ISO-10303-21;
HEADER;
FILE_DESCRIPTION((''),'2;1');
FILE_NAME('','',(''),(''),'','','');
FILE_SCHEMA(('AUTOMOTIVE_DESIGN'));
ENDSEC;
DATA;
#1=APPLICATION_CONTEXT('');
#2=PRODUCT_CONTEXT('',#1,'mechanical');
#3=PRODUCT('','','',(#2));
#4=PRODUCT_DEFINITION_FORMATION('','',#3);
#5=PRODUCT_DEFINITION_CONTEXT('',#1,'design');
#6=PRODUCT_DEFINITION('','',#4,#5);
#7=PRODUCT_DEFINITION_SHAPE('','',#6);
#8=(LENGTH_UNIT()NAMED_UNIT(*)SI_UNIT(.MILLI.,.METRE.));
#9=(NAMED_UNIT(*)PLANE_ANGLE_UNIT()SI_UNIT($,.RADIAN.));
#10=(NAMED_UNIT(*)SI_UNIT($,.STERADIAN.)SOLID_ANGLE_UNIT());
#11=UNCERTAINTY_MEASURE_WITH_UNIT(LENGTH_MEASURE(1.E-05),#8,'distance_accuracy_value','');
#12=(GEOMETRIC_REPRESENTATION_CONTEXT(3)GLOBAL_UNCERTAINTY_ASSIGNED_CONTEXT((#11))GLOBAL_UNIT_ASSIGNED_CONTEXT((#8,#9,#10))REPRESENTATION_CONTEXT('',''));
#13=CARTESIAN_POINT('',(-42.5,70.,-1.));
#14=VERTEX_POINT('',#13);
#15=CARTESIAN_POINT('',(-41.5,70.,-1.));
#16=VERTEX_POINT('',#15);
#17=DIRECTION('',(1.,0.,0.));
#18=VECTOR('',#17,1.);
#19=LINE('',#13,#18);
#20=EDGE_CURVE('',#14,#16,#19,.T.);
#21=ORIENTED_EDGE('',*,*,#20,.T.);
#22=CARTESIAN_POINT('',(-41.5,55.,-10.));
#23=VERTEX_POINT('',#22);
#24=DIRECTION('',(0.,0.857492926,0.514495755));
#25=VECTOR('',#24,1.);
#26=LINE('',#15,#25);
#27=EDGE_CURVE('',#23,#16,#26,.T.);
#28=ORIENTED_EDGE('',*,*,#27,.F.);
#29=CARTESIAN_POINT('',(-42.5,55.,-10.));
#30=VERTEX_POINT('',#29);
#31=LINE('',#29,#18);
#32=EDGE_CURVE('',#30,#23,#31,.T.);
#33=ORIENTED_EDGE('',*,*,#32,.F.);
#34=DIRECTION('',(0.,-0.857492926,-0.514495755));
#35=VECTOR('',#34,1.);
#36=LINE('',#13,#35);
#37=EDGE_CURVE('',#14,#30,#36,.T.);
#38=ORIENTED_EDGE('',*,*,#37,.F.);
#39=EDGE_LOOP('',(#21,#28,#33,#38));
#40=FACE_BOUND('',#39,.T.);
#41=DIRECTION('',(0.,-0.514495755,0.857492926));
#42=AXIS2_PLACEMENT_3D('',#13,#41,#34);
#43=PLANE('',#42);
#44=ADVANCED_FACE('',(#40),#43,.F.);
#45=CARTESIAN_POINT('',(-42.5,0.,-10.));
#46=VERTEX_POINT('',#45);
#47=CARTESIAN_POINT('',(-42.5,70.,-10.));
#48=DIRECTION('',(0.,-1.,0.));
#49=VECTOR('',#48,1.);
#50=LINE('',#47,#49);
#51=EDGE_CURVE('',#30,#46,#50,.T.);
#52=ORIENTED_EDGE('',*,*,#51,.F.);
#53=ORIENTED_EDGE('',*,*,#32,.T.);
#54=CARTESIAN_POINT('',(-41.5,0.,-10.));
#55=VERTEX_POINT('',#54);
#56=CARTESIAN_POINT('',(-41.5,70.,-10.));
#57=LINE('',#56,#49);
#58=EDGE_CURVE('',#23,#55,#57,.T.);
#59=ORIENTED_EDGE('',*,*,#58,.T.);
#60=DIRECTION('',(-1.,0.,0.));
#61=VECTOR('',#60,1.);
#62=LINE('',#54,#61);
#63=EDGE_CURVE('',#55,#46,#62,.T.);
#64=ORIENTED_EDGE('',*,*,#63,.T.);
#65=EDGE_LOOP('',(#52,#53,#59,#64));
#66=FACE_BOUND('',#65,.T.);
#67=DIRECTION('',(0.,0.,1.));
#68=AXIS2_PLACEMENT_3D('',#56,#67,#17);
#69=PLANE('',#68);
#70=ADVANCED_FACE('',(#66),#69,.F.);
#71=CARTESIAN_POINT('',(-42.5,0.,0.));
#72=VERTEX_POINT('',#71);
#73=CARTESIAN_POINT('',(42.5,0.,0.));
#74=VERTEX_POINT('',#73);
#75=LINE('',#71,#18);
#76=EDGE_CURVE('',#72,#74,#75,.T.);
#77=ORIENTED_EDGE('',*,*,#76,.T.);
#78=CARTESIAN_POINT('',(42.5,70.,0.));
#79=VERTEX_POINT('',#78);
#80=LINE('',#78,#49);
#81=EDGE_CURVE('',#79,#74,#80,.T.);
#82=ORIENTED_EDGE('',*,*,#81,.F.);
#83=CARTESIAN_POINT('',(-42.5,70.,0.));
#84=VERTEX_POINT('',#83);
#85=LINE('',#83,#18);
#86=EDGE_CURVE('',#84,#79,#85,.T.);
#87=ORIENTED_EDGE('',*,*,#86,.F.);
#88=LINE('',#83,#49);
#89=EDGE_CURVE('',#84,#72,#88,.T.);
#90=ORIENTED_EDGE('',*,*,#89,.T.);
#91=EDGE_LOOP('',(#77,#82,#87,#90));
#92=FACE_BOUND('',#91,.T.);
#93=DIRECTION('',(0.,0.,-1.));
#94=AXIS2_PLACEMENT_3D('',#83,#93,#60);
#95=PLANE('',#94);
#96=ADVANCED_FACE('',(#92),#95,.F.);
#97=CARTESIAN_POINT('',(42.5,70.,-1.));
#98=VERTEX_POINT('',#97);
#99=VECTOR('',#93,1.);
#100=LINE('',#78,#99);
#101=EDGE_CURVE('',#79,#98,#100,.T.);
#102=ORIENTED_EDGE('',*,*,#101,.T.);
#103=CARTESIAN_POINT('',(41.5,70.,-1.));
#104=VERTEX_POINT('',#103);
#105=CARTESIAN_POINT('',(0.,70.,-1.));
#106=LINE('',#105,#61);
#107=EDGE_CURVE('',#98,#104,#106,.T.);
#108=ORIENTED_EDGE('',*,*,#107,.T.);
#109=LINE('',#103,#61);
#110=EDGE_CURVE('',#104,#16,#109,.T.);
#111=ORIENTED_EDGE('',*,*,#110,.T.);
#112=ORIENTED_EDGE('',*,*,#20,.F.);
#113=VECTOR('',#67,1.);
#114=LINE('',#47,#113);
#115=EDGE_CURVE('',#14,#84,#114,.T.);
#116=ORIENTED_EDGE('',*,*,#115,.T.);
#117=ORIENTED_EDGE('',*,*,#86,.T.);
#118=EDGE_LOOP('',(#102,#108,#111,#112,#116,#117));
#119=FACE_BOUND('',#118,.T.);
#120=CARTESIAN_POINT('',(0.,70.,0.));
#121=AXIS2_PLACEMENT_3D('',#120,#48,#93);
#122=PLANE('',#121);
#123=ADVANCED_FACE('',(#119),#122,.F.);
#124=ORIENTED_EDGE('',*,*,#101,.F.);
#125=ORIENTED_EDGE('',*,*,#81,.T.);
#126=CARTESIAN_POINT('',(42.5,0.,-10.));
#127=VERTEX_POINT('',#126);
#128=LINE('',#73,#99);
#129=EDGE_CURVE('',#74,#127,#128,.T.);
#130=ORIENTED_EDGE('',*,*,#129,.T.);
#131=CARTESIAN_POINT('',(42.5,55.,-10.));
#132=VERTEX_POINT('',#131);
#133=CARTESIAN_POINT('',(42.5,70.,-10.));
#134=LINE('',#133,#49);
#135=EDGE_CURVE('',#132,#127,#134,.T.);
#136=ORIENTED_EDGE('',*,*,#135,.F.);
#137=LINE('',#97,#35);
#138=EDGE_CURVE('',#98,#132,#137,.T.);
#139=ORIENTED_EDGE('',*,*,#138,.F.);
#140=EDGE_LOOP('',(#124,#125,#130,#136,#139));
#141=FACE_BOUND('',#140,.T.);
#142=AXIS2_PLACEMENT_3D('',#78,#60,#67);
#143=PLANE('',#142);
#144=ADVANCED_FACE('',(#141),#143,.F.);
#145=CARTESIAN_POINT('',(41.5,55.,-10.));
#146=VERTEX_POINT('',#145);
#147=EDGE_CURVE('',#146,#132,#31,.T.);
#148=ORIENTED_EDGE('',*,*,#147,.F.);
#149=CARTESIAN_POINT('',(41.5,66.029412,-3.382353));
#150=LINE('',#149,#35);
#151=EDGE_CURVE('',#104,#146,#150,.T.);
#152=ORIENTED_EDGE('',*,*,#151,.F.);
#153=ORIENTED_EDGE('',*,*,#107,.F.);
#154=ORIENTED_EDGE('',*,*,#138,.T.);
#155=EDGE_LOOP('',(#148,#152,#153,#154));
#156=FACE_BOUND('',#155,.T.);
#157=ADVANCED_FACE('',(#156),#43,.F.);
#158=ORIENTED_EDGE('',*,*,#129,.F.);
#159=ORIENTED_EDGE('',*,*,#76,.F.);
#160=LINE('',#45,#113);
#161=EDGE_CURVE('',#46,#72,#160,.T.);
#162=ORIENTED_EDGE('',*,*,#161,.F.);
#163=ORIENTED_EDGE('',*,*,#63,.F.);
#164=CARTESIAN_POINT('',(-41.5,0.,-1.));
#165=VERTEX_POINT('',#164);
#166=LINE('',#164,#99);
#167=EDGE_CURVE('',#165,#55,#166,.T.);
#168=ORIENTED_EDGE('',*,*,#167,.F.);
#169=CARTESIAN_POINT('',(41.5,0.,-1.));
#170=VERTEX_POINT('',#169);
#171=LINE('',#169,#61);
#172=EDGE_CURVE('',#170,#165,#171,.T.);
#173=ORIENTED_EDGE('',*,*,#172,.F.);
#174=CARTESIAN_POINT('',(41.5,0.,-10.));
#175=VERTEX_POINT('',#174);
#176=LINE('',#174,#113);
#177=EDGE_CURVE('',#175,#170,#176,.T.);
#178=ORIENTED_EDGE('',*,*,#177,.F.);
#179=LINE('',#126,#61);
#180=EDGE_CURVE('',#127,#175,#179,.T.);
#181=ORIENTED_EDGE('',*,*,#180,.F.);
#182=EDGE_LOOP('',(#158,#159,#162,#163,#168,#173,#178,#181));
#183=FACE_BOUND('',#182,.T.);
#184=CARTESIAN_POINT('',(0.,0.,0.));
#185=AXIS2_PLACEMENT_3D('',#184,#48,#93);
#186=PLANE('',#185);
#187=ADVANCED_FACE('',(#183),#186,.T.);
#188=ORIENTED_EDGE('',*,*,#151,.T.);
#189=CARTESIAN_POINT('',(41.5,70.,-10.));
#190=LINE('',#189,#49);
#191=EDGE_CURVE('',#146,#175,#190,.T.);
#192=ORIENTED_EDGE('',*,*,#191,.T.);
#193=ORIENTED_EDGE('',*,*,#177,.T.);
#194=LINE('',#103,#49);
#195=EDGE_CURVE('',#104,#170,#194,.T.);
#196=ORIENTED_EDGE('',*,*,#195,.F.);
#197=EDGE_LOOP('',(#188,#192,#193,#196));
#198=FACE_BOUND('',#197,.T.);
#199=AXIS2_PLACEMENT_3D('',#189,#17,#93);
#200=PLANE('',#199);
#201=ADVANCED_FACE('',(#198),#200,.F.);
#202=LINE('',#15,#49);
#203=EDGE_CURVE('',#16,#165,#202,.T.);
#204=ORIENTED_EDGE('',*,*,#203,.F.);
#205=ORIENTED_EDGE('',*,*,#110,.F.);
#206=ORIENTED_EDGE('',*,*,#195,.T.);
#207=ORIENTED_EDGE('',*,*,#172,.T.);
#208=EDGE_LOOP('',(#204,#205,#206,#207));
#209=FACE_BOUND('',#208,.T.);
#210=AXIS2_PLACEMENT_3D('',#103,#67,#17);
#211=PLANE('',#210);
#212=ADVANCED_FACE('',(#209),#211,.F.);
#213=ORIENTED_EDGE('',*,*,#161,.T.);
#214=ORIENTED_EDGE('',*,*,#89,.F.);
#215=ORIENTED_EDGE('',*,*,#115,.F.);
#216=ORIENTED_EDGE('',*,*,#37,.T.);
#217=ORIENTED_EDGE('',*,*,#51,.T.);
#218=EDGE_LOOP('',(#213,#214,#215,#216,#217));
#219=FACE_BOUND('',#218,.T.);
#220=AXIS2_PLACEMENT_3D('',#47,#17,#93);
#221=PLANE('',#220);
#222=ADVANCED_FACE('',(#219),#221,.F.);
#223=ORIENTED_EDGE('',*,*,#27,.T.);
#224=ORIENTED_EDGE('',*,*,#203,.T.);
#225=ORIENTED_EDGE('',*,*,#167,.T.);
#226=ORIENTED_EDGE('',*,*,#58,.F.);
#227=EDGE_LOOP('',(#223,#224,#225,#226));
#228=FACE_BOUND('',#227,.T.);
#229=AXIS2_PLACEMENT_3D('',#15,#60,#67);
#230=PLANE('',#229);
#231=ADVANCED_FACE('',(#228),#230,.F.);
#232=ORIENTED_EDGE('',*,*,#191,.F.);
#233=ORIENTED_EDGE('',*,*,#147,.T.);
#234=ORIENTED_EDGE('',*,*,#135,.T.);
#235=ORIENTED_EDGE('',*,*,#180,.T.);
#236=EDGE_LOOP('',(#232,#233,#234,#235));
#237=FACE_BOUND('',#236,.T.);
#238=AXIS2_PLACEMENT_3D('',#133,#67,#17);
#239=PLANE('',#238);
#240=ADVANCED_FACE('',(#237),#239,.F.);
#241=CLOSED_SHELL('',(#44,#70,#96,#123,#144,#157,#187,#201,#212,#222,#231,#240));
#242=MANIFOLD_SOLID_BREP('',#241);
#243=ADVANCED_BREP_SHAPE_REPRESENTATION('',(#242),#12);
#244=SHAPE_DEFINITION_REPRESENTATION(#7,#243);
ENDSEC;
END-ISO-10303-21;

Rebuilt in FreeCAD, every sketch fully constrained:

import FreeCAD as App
import Part
import Sketcher
from FreeCAD import Vector

doc = App.newDocument("Part")
params = doc.addObject("Spreadsheet::Sheet", "Params")
for row, (alias, value) in enumerate([
    ("sketch1_width", "85 mm"),
    ("sketch1_width2", "1 mm"),
    ("sketch1_height", "10 mm"),
    ("sketch1_height2", "9 mm"),
    ("pad1_length", "70 mm"),
    ("sketch2_width", "15 mm"),
    ("sketch2_height", "9 mm"),
], start=1):
    params.set(f"A{row}", alias)
    params.set(f"B{row}", "=" + value)
    params.setAlias(f"B{row}", alias)

body = doc.addObject("PartDesign::Body", "Body")

sketch1 = body.newObject("Sketcher::SketchObject", "Sketch")
sketch1.AttachmentSupport = (doc.getObject("XZ_Plane"), [""])
sketch1.MapMode = "FlatFace"
sketch1.addGeometry([
    Part.LineSegment(Vector(-42.5, 0, 0), Vector(42.5, 0, 0)),
    Part.LineSegment(Vector(42.5, 0, 0), Vector(42.5, -10, 0)),
    Part.LineSegment(Vector(42.5, -10, 0), Vector(41.5, -10, 0)),
    Part.LineSegment(Vector(41.5, -10, 0), Vector(41.5, -1, 0)),
    Part.LineSegment(Vector(41.5, -1, 0), Vector(-41.5, -1, 0)),
    Part.LineSegment(Vector(-41.5, -1, 0), Vector(-41.5, -10, 0)),
    Part.LineSegment(Vector(-41.5, -10, 0), Vector(-42.5, -10, 0)),
    Part.LineSegment(Vector(-42.5, -10, 0), Vector(-42.5, 0, 0)),
], False)
sketch1.addConstraint([
    Sketcher.Constraint("Coincident", 0, 2, 1, 1),
    Sketcher.Constraint("Coincident", 1, 2, 2, 1),
    Sketcher.Constraint("Coincident", 2, 2, 3, 1),
    Sketcher.Constraint("Coincident", 3, 2, 4, 1),
    Sketcher.Constraint("Coincident", 4, 2, 5, 1),
    Sketcher.Constraint("Coincident", 5, 2, 6, 1),
    Sketcher.Constraint("Coincident", 6, 2, 7, 1),
    Sketcher.Constraint("Coincident", 7, 2, 0, 1),
    Sketcher.Constraint("Horizontal", 0),
    Sketcher.Constraint("Vertical", 1),
    Sketcher.Constraint("Horizontal", 2),
    Sketcher.Constraint("Vertical", 3),
    Sketcher.Constraint("Horizontal", 4),
    Sketcher.Constraint("Vertical", 5),
    Sketcher.Constraint("Horizontal", 6),
    Sketcher.Constraint("Vertical", 7),
    Sketcher.Constraint("Symmetric", 0, 2, 7, 2, -1, 1),
    Sketcher.Constraint("Symmetric", 2, 2, 5, 2, -2),
    Sketcher.Constraint("DistanceX", 0, 1, 0, 2, 85.0),
    Sketcher.Constraint("DistanceX", 2, 2, 2, 1, 1.0),
    Sketcher.Constraint("DistanceY", 1, 2, 1, 1, 10.0),
    Sketcher.Constraint("DistanceY", 3, 1, 3, 2, 9.0),
])
sketch1.setExpression("Constraints[18]", "Params.sketch1_width")
sketch1.setExpression("Constraints[19]", "Params.sketch1_width2")
sketch1.setExpression("Constraints[20]", "Params.sketch1_height")
sketch1.setExpression("Constraints[21]", "Params.sketch1_height2")
pad1 = body.newObject("PartDesign::Pad", "Pad")
pad1.Profile = sketch1
pad1.setExpression("Length", "Params.pad1_length")
pad1.Reversed = True

sketch2 = body.newObject("Sketcher::SketchObject", "Sketch001")
sketch2.AttachmentSupport = (doc.getObject("YZ_Plane"), [""])
sketch2.MapMode = "FlatFace"
sketch2.addGeometry([
    Part.LineSegment(Vector(70, -1, 0), Vector(55, -10, 0)),
    Part.LineSegment(Vector(55, -10, 0), Vector(70, -10, 0)),
    Part.LineSegment(Vector(70, -10, 0), Vector(70, -1, 0)),
], False)
sketch2.addConstraint([
    Sketcher.Constraint("Coincident", 0, 2, 1, 1),
    Sketcher.Constraint("Coincident", 1, 2, 2, 1),
    Sketcher.Constraint("Coincident", 2, 2, 0, 1),
    Sketcher.Constraint("Horizontal", 1),
    Sketcher.Constraint("Vertical", 2),
    Sketcher.Constraint("DistanceX", 1, 1, 1, 2, 15.0),
    Sketcher.Constraint("DistanceY", 2, 1, 2, 2, 9.0),
    Sketcher.Constraint("DistanceX", -1, 1, 0, 2, 55.0),
    Sketcher.Constraint("DistanceY", 0, 2, -1, 1, 10.0),
])
sketch2.setExpression("Constraints[5]", "Params.sketch2_width")
sketch2.setExpression("Constraints[6]", "Params.sketch2_height")
pocket1 = body.newObject("PartDesign::Pocket", "Pocket")
pocket1.Profile = sketch2
pocket1.Type = "ThroughAll"
pocket1.Midplane = True

doc.recompute()
